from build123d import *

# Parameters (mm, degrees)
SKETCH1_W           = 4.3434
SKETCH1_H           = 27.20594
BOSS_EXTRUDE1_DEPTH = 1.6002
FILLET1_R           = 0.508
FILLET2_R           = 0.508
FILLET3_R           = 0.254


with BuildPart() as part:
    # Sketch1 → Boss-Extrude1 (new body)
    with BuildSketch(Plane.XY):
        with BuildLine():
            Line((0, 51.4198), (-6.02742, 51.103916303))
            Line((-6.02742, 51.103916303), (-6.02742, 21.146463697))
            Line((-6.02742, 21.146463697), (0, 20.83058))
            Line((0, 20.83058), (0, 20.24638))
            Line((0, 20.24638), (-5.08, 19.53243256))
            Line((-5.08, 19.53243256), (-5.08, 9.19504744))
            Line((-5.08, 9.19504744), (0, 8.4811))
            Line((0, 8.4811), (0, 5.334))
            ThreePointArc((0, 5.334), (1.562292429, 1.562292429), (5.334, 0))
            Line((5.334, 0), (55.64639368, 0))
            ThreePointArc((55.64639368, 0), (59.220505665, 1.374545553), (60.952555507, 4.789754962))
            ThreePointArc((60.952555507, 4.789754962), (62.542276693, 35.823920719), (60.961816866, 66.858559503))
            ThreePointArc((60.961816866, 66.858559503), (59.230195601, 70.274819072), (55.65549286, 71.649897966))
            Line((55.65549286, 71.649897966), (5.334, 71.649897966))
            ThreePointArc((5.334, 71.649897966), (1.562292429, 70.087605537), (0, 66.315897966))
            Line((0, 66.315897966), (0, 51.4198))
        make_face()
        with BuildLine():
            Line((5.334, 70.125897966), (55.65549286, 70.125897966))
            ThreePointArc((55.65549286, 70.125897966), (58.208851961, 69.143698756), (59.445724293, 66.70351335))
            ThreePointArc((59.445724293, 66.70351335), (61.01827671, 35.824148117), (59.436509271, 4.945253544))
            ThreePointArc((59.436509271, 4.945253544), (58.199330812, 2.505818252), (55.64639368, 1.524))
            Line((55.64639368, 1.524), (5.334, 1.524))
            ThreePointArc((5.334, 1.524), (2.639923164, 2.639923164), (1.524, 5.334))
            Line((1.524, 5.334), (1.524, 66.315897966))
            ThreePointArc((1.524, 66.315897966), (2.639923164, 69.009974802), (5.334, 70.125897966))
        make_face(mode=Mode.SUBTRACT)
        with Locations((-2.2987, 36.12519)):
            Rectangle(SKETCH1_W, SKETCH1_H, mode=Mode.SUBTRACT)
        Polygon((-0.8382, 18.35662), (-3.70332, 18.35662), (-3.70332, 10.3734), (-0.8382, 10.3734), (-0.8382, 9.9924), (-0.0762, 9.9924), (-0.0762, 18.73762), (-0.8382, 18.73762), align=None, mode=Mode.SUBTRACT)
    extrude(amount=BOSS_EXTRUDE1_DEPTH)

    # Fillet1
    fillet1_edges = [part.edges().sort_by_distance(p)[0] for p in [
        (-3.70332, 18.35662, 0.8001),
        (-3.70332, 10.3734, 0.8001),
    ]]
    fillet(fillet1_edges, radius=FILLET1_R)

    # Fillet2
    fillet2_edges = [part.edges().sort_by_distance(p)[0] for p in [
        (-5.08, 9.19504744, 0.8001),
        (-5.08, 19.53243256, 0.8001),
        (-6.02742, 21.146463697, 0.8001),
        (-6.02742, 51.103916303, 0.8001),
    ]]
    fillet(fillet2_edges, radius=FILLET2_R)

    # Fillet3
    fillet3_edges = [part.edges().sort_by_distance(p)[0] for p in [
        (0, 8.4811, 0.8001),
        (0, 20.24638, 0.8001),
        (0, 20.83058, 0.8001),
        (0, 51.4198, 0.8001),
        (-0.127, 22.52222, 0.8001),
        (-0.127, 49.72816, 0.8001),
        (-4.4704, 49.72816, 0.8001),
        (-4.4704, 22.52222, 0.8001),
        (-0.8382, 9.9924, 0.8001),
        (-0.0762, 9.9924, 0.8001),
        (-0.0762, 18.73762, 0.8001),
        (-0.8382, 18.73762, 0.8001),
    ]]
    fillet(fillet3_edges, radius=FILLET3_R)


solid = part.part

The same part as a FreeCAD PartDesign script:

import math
import FreeCAD as App
import Part
import Sketcher
from FreeCAD import Vector
Q = App.Units.Quantity


def edges_at(feature, points):
    """Names of the edges that pass closest to the given points."""
    edges = feature.Shape.Edges
    near = lambda p: min(range(len(edges)), key=lambda i: edges[i].distToShape(Part.Vertex(*p))[0])
    return sorted({f"Edge{near(p) + 1}" for p in points})

doc = App.newDocument("Part")
body = doc.addObject("PartDesign::Body", "Body")

# Sketch on XY plane
sketch1 = body.newObject("Sketcher::SketchObject", "Sketch")
sketch1.AttachmentSupport = (doc.getObject("XY_Plane"), [""])
sketch1.MapMode = "FlatFace"
sketch1.addGeometry(Part.LineSegment(Vector(0, 51.42, 0), Vector(-6.03, 51.1, 0)), False)
sketch1.addGeometry(Part.LineSegment(Vector(-6.03, 51.1, 0), Vector(-6.03, 21.15, 0)), False)
sketch1.addGeometry(Part.LineSegment(Vector(-6.03, 21.15, 0), Vector(0, 20.83, 0)), False)
sketch1.addGeometry(Part.LineSegment(Vector(0, 20.83, 0), Vector(0, 20.25, 0)), False)
sketch1.addGeometry(Part.LineSegment(Vector(0, 20.25, 0), Vector(-5.08, 19.53, 0)), False)
sketch1.addGeometry(Part.LineSegment(Vector(-5.08, 19.53, 0), Vector(-5.08, 9.2, 0)), False)
sketch1.addGeometry(Part.LineSegment(Vector(-5.08, 9.2, 0), Vector(0, 8.48, 0)), False)
sketch1.addGeometry(Part.LineSegment(Vector(0, 8.48, 0), Vector(0, 5.33, 0)), False)
sketch1.addGeometry(Part.ArcOfCircle(Part.Circle(Vector(5.33, 5.33, 0), Vector(0, 0, 1), 5.33), math.radians(180), math.radians(270)), False)
sketch1.addGeometry(Part.LineSegment(Vector(5.33, 0, 0), Vector(55.65, 0, 0)), False)
sketch1.addGeometry(Part.ArcOfCircle(Part.Circle(Vector(55.65, 5.33, 0), Vector(0, 0, 1), 5.33), math.radians(-90), math.radians(-6)), False)
sketch1.addGeometry(Part.ArcOfCircle(Part.Circle(Vector(-242.06, 35.87, 0), Vector(0, 0, 1), 304.6), math.radians(-5.86), math.radians(5.84)), False)
sketch1.addGeometry(Part.ArcOfCircle(Part.Circle(Vector(55.66, 66.32, 0), Vector(0, 0, 1), 5.33), math.radians(6), math.radians(90)), False)
sketch1.addGeometry(Part.LineSegment(Vector(55.66, 71.65, 0), Vector(5.33, 71.65, 0)), False)
sketch1.addGeometry(Part.ArcOfCircle(Part.Circle(Vector(5.33, 66.32, 0), Vector(0, 0, 1), 5.33), math.radians(90), math.radians(180)), False)
sketch1.addGeometry(Part.LineSegment(Vector(0, 66.32, 0), Vector(0, 51.42, 0)), False)
sketch1.addGeometry(Part.LineSegment(Vector(-3.7, 18.36, 0), Vector(-0.84, 18.36, 0)), False)
sketch1.addGeometry(Part.LineSegment(Vector(-0.84, 18.36, 0), Vector(-0.84, 18.74, 0)), False)
sketch1.addGeometry(Part.LineSegment(Vector(-0.84, 18.74, 0), Vector(-0.08, 18.74, 0)), False)
sketch1.addGeometry(Part.LineSegment(Vector(-0.08, 18.74, 0), Vector(-0.08, 9.99, 0)), False)
sketch1.addGeometry(Part.LineSegment(Vector(-0.08, 9.99, 0), Vector(-0.84, 9.99, 0)), False)
sketch1.addGeometry(Part.LineSegment(Vector(-0.84, 9.99, 0), Vector(-0.84, 10.37, 0)), False)
sketch1.addGeometry(Part.LineSegment(Vector(-0.84, 10.37, 0), Vector(-3.7, 10.37, 0)), False)
sketch1.addGeometry(Part.LineSegment(Vector(-3.7, 10.37, 0), Vector(-3.7, 18.36, 0)), False)
sketch1.addGeometry(Part.LineSegment(Vector(-0.13, 22.52, 0), Vector(-4.47, 22.52, 0)), False)
sketch1.addGeometry(Part.LineSegment(Vector(-4.47, 22.52, 0), Vector(-4.47, 49.73, 0)), False)
sketch1.addGeometry(Part.LineSegment(Vector(-4.47, 49.73, 0), Vector(-0.13, 49.73, 0)), False)
sketch1.addGeometry(Part.LineSegment(Vector(-0.13, 49.73, 0), Vector(-0.13, 22.52, 0)), False)
sketch1.addGeometry(Part.ArcOfCircle(Part.Circle(Vector(5.33, 66.32, 0), Vector(0, 0, 1), 3.81), math.radians(90), math.radians(180)), False)
sketch1.addGeometry(Part.LineSegment(Vector(5.33, 70.13, 0), Vector(55.66, 70.13, 0)), False)
sketch1.addGeometry(Part.ArcOfCircle(Part.Circle(Vector(55.66, 66.32, 0), Vector(0, 0, 1), 3.81), math.radians(6), math.radians(90)), False)
sketch1.addGeometry(Part.ArcOfCircle(Part.Circle(Vector(-242.06, 35.87, 0), Vector(0, 0, 1), 303.08), math.radians(-5.86), math.radians(5.84)), False)
sketch1.addGeometry(Part.ArcOfCircle(Part.Circle(Vector(55.65, 5.33, 0), Vector(0, 0, 1), 3.81), math.radians(-90), math.radians(-6)), False)
sketch1.addGeometry(Part.LineSegment(Vector(55.65, 1.52, 0), Vector(5.33, 1.52, 0)), False)
sketch1.addGeometry(Part.ArcOfCircle(Part.Circle(Vector(5.33, 5.33, 0), Vector(0, 0, 1), 3.81), math.radians(-180), math.radians(-90)), False)
sketch1.addGeometry(Part.LineSegment(Vector(1.52, 5.33, 0), Vector(1.52, 66.32, 0)), False)
sketch1.addConstraint(Sketcher.Constraint("Coincident", 0, 2, 1, 1))
sketch1.addConstraint(Sketcher.Constraint("Coincident", 1, 2, 2, 1))
sketch1.addConstraint(Sketcher.Constraint("Coincident", 2, 2, 3, 1))
sketch1.addConstraint(Sketcher.Constraint("Coincident", 3, 2, 4, 1))
sketch1.addConstraint(Sketcher.Constraint("Coincident", 4, 2, 5, 1))
sketch1.addConstraint(Sketcher.Constraint("Coincident", 5, 2, 6, 1))
sketch1.addConstraint(Sketcher.Constraint("Coincident", 6, 2, 7, 1))
sketch1.addConstraint(Sketcher.Constraint("Tangent", 7, 2, 8, 1))
sketch1.addConstraint(Sketcher.Constraint("Tangent", 8, 2, 9, 1))
sketch1.addConstraint(Sketcher.Constraint("Tangent", 9, 2, 10, 1))
sketch1.addConstraint(Sketcher.Constraint("Tangent", 10, 2, 11, 1))
sketch1.addConstraint(Sketcher.Constraint("Tangent", 11, 2, 12, 1))
sketch1.addConstraint(Sketcher.Constraint("Tangent", 12, 2, 13, 1))
sketch1.addConstraint(Sketcher.Constraint("Tangent", 13, 2, 14, 1))
sketch1.addConstraint(Sketcher.Constraint("Tangent", 14, 2, 15, 1))
sketch1.addConstraint(Sketcher.Constraint("Coincident", 15, 2, 0, 1))
sketch1.addConstraint(Sketcher.Constraint("Coincident", 16, 2, 17, 1))
sketch1.addConstraint(Sketcher.Constraint("Coincident", 17, 2, 18, 1))
sketch1.addConstraint(Sketcher.Constraint("Coincident", 18, 2, 19, 1))
sketch1.addConstraint(Sketcher.Constraint("Coincident", 19, 2, 20, 1))
sketch1.addConstraint(Sketcher.Constraint("Coincident", 20, 2, 21, 1))
sketch1.addConstraint(Sketcher.Constraint("Coincident", 21, 2, 22, 1))
sketch1.addConstraint(Sketcher.Constraint("Coincident", 22, 2, 23, 1))
sketch1.addConstraint(Sketcher.Constraint("Coincident", 23, 2, 16, 1))
sketch1.addConstraint(Sketcher.Constraint("Coincident", 24, 2, 25, 1))
sketch1.addConstraint(Sketcher.Constraint("Coincident", 25, 2, 26, 1))
sketch1.addConstraint(Sketcher.Constraint("Coincident", 26, 2, 27, 1))
sketch1.addConstraint(Sketcher.Constraint("Coincident", 27, 2, 24, 1))
sketch1.addConstraint(Sketcher.Constraint("Tangent", 28, 1, 29, 1))
sketch1.addConstraint(Sketcher.Constraint("Tangent", 29, 2, 30, 2))
sketch1.addConstraint(Sketcher.Constraint("Tangent", 30, 1, 31, 2))
sketch1.addConstraint(Sketcher.Constraint("Tangent", 31, 1, 32, 2))
sketch1.addConstraint(Sketcher.Constraint("Tangent", 32, 1, 33, 1))
sketch1.addConstraint(Sketcher.Constraint("Tangent", 33, 2, 34, 2))
sketch1.addConstraint(Sketcher.Constraint("Tangent", 34, 1, 35, 1))
sketch1.addConstraint(Sketcher.Constraint("Tangent", 35, 2, 28, 2))
sketch1.addConstraint(Sketcher.Constraint("Vertical", 1))
sketch1.addConstraint(Sketcher.Constraint("Vertical", 3))
sketch1.addConstraint(Sketcher.Constraint("Vertical", 5))
sketch1.addConstraint(Sketcher.Constraint("Vertical", 7))
sketch1.addConstraint(Sketcher.Constraint("Horizontal", 9))
sketch1.addConstraint(Sketcher.Constraint("Horizontal", 13))
sketch1.addConstraint(Sketcher.Constraint("Vertical", 15))
sketch1.addConstraint(Sketcher.Constraint("Horizontal", 16))
sketch1.addConstraint(Sketcher.Constraint("Vertical", 17))
sketch1.addConstraint(Sketcher.Constraint("Horizontal", 18))
sketch1.addConstraint(Sketcher.Constraint("Vertical", 19))
sketch1.addConstraint(Sketcher.Constraint("Horizontal", 20))
sketch1.addConstraint(Sketcher.Constraint("Vertical", 21))
sketch1.addConstraint(Sketcher.Constraint("Horizontal", 22))
sketch1.addConstraint(Sketcher.Constraint("Vertical", 23))
sketch1.addConstraint(Sketcher.Constraint("Horizontal", 24))
sketch1.addConstraint(Sketcher.Constraint("Vertical", 25))
sketch1.addConstraint(Sketcher.Constraint("Horizontal", 26))
sketch1.addConstraint(Sketcher.Constraint("Vertical", 27))
sketch1.addConstraint(Sketcher.Constraint("Horizontal", 29))
sketch1.addConstraint(Sketcher.Constraint("Horizontal", 33))
sketch1.addConstraint(Sketcher.Constraint("Vertical", 35))
sketch1.addConstraint(Sketcher.Constraint("Coincident", 28, 3, 14, 3))
sketch1.addConstraint(Sketcher.Constraint("Coincident", 30, 3, 12, 3))
sketch1.addConstraint(Sketcher.Constraint("Coincident", 31, 3, 11, 3))
sketch1.addConstraint(Sketcher.Constraint("Coincident", 32, 3, 10, 3))
sketch1.addConstraint(Sketcher.Constraint("Coincident", 34, 3, 8, 3))
sketch1.addConstraint(Sketcher.Constraint("Equal", 8, 10))
sketch1.addConstraint(Sketcher.Constraint("Equal", 10, 12))
sketch1.addConstraint(Sketcher.Constraint("Equal", 12, 14))
sketch1.addConstraint(Sketcher.Constraint("PointOnObject", 2, 2, -2))
sketch1.addConstraint(Sketcher.Constraint("PointOnObject", 6, 2, -2))
sketch1.addConstraint(Sketcher.Constraint("PointOnObject", 8, 2, -1))
sketch1.addConstraint(Sketcher.Constraint("Vertical", 17, 2, 20, 2))
sketch1.addConstraint(Sketcher.Constraint("Equal", 17, 21))
sketch1.addConstraint(Sketcher.Constraint("Equal", 0, 2))
sketch1.addConstraint(Sketcher.Constraint("Equal", 4, 6))
sketch1.addConstraint(Sketcher.Constraint("Radius", 8, Q("0.21 in")))
sketch1.addConstraint(Sketcher.Constraint("Radius", 28, Q("0.15 in")))
sketch1.addConstraint(Sketcher.Constraint("Angle", 0, Q("-177 deg")))
sketch1.addConstraint(Sketcher.Constraint("Angle", 4, Q("-172 deg")))
sketch1.addConstraint(Sketcher.Constraint("DistanceX", 18, 1, 18, 2, Q("0.03 in")))
sketch1.addConstraint(Sketcher.Constraint("DistanceX", 4, 2, -1, 1, Q("0.2 in")))
sketch1.addConstraint(Sketcher.Constraint("DistanceX", 24, 2, 24, 1, Q("0.171 in")))
sketch1.addConstraint(Sketcher.Constraint("DistanceY", 3, 2, 3, 1, Q("0.023 in")))
sketch1.addConstraint(Sketcher.Constraint("DistanceY", 17, 1, 17, 2, Q("0.015 in")))
sketch1.addConstraint(Sketcher.Constraint("Radius", 11, Q("304.603 mm")))
sketch1.addConstraint(Sketcher.Constraint("DistanceX", 16, 1, 16, 2, Q("0.1128 in")))
sketch1.addConstraint(Sketcher.Constraint("DistanceY", 19, 2, 19, 1, Q("0.3443 in")))
sketch1.addConstraint(Sketcher.Constraint("DistanceY", 25, 1, 25, 2, Q("1.0711 in")))
sketch1.addConstraint(Sketcher.Constraint("DistanceX", 16, 2, -1, 1, Q("0.033 in")))
sketch1.addConstraint(Sketcher.Constraint("DistanceX", 24, 2, -1, 1, Q("0.176 in")))
sketch1.addConstraint(Sketcher.Constraint("DistanceY", 23, 2, 24, 2, Q("0.164 in")))
sketch1.addConstraint(Sketcher.Constraint("DistanceY", 7, 2, 7, 1, Q("3.1471 mm")))
sketch1.addConstraint(Sketcher.Constraint("DistanceX", 0, 2, -1, 1, Q("0.2373 in")))
sketch1.addConstraint(Sketcher.Constraint("DistanceY", 6, 2, 3, 2, Q("0.4632 in")))
sketch1.addConstraint(Sketcher.Constraint("DistanceY", 16, 2, 3, 2, Q("0.0744 in")))
sketch1.addConstraint(Sketcher.Constraint("DistanceY", 25, 2, 15, 2, Q("0.0666 in")))
sketch1.addConstraint(Sketcher.Constraint("DistanceX", 10, 3, 12, 3, Q("0.009099 mm")))
sketch1.addConstraint(Sketcher.Constraint("DistanceX", 9, 1, 9, 2, Q("50.312394 mm")))
sketch1.addConstraint(Sketcher.Constraint("DistanceY", 15, 2, 15, 1, Q("14.896098 mm")))
pad1 = body.newObject("PartDesign::Pad", "Pad")
pad1.Profile = sketch1
pad1.Length = Q("0.063 in")
doc.recompute()

fillet = body.newObject("PartDesign::Fillet", "Fillet")
fillet.Base = (pad1, edges_at(pad1, [(-3.703, 18.357, 0.8), (-3.703, 10.373, 0.8)]))
fillet.Radius = Q("0.02 in")
doc.recompute()

fillet2 = body.newObject("PartDesign::Fillet", "Fillet001")
fillet2.Base = (fillet, edges_at(fillet, [
    (-5.08, 9.195, 0.8),
    (-5.08, 19.532, 0.8),
    (-6.027, 21.146, 0.8),
    (-6.027, 51.104, 0.8),
]))
fillet2.Radius = Q("0.02 in")
doc.recompute()

fillet3 = body.newObject("PartDesign::Fillet", "Fillet002")
fillet3.Base = (fillet2, edges_at(fillet2, [
    (0, 8.481, 0.8),
    (0, 20.246, 0.8),
    (0, 20.831, 0.8),
    (0, 51.42, 0.8),
    (-0.127, 22.522, 0.8),
    (-0.127, 49.728, 0.8),
    (-4.47, 49.728, 0.8),
    (-4.47, 22.522, 0.8),
    (-0.838, 9.992, 0.8),
    (-0.076, 9.992, 0.8),
    (-0.076, 18.738, 0.8),
    (-0.838, 18.738, 0.8),
]))
fillet3.Radius = Q("0.01 in")

doc.recompute()
